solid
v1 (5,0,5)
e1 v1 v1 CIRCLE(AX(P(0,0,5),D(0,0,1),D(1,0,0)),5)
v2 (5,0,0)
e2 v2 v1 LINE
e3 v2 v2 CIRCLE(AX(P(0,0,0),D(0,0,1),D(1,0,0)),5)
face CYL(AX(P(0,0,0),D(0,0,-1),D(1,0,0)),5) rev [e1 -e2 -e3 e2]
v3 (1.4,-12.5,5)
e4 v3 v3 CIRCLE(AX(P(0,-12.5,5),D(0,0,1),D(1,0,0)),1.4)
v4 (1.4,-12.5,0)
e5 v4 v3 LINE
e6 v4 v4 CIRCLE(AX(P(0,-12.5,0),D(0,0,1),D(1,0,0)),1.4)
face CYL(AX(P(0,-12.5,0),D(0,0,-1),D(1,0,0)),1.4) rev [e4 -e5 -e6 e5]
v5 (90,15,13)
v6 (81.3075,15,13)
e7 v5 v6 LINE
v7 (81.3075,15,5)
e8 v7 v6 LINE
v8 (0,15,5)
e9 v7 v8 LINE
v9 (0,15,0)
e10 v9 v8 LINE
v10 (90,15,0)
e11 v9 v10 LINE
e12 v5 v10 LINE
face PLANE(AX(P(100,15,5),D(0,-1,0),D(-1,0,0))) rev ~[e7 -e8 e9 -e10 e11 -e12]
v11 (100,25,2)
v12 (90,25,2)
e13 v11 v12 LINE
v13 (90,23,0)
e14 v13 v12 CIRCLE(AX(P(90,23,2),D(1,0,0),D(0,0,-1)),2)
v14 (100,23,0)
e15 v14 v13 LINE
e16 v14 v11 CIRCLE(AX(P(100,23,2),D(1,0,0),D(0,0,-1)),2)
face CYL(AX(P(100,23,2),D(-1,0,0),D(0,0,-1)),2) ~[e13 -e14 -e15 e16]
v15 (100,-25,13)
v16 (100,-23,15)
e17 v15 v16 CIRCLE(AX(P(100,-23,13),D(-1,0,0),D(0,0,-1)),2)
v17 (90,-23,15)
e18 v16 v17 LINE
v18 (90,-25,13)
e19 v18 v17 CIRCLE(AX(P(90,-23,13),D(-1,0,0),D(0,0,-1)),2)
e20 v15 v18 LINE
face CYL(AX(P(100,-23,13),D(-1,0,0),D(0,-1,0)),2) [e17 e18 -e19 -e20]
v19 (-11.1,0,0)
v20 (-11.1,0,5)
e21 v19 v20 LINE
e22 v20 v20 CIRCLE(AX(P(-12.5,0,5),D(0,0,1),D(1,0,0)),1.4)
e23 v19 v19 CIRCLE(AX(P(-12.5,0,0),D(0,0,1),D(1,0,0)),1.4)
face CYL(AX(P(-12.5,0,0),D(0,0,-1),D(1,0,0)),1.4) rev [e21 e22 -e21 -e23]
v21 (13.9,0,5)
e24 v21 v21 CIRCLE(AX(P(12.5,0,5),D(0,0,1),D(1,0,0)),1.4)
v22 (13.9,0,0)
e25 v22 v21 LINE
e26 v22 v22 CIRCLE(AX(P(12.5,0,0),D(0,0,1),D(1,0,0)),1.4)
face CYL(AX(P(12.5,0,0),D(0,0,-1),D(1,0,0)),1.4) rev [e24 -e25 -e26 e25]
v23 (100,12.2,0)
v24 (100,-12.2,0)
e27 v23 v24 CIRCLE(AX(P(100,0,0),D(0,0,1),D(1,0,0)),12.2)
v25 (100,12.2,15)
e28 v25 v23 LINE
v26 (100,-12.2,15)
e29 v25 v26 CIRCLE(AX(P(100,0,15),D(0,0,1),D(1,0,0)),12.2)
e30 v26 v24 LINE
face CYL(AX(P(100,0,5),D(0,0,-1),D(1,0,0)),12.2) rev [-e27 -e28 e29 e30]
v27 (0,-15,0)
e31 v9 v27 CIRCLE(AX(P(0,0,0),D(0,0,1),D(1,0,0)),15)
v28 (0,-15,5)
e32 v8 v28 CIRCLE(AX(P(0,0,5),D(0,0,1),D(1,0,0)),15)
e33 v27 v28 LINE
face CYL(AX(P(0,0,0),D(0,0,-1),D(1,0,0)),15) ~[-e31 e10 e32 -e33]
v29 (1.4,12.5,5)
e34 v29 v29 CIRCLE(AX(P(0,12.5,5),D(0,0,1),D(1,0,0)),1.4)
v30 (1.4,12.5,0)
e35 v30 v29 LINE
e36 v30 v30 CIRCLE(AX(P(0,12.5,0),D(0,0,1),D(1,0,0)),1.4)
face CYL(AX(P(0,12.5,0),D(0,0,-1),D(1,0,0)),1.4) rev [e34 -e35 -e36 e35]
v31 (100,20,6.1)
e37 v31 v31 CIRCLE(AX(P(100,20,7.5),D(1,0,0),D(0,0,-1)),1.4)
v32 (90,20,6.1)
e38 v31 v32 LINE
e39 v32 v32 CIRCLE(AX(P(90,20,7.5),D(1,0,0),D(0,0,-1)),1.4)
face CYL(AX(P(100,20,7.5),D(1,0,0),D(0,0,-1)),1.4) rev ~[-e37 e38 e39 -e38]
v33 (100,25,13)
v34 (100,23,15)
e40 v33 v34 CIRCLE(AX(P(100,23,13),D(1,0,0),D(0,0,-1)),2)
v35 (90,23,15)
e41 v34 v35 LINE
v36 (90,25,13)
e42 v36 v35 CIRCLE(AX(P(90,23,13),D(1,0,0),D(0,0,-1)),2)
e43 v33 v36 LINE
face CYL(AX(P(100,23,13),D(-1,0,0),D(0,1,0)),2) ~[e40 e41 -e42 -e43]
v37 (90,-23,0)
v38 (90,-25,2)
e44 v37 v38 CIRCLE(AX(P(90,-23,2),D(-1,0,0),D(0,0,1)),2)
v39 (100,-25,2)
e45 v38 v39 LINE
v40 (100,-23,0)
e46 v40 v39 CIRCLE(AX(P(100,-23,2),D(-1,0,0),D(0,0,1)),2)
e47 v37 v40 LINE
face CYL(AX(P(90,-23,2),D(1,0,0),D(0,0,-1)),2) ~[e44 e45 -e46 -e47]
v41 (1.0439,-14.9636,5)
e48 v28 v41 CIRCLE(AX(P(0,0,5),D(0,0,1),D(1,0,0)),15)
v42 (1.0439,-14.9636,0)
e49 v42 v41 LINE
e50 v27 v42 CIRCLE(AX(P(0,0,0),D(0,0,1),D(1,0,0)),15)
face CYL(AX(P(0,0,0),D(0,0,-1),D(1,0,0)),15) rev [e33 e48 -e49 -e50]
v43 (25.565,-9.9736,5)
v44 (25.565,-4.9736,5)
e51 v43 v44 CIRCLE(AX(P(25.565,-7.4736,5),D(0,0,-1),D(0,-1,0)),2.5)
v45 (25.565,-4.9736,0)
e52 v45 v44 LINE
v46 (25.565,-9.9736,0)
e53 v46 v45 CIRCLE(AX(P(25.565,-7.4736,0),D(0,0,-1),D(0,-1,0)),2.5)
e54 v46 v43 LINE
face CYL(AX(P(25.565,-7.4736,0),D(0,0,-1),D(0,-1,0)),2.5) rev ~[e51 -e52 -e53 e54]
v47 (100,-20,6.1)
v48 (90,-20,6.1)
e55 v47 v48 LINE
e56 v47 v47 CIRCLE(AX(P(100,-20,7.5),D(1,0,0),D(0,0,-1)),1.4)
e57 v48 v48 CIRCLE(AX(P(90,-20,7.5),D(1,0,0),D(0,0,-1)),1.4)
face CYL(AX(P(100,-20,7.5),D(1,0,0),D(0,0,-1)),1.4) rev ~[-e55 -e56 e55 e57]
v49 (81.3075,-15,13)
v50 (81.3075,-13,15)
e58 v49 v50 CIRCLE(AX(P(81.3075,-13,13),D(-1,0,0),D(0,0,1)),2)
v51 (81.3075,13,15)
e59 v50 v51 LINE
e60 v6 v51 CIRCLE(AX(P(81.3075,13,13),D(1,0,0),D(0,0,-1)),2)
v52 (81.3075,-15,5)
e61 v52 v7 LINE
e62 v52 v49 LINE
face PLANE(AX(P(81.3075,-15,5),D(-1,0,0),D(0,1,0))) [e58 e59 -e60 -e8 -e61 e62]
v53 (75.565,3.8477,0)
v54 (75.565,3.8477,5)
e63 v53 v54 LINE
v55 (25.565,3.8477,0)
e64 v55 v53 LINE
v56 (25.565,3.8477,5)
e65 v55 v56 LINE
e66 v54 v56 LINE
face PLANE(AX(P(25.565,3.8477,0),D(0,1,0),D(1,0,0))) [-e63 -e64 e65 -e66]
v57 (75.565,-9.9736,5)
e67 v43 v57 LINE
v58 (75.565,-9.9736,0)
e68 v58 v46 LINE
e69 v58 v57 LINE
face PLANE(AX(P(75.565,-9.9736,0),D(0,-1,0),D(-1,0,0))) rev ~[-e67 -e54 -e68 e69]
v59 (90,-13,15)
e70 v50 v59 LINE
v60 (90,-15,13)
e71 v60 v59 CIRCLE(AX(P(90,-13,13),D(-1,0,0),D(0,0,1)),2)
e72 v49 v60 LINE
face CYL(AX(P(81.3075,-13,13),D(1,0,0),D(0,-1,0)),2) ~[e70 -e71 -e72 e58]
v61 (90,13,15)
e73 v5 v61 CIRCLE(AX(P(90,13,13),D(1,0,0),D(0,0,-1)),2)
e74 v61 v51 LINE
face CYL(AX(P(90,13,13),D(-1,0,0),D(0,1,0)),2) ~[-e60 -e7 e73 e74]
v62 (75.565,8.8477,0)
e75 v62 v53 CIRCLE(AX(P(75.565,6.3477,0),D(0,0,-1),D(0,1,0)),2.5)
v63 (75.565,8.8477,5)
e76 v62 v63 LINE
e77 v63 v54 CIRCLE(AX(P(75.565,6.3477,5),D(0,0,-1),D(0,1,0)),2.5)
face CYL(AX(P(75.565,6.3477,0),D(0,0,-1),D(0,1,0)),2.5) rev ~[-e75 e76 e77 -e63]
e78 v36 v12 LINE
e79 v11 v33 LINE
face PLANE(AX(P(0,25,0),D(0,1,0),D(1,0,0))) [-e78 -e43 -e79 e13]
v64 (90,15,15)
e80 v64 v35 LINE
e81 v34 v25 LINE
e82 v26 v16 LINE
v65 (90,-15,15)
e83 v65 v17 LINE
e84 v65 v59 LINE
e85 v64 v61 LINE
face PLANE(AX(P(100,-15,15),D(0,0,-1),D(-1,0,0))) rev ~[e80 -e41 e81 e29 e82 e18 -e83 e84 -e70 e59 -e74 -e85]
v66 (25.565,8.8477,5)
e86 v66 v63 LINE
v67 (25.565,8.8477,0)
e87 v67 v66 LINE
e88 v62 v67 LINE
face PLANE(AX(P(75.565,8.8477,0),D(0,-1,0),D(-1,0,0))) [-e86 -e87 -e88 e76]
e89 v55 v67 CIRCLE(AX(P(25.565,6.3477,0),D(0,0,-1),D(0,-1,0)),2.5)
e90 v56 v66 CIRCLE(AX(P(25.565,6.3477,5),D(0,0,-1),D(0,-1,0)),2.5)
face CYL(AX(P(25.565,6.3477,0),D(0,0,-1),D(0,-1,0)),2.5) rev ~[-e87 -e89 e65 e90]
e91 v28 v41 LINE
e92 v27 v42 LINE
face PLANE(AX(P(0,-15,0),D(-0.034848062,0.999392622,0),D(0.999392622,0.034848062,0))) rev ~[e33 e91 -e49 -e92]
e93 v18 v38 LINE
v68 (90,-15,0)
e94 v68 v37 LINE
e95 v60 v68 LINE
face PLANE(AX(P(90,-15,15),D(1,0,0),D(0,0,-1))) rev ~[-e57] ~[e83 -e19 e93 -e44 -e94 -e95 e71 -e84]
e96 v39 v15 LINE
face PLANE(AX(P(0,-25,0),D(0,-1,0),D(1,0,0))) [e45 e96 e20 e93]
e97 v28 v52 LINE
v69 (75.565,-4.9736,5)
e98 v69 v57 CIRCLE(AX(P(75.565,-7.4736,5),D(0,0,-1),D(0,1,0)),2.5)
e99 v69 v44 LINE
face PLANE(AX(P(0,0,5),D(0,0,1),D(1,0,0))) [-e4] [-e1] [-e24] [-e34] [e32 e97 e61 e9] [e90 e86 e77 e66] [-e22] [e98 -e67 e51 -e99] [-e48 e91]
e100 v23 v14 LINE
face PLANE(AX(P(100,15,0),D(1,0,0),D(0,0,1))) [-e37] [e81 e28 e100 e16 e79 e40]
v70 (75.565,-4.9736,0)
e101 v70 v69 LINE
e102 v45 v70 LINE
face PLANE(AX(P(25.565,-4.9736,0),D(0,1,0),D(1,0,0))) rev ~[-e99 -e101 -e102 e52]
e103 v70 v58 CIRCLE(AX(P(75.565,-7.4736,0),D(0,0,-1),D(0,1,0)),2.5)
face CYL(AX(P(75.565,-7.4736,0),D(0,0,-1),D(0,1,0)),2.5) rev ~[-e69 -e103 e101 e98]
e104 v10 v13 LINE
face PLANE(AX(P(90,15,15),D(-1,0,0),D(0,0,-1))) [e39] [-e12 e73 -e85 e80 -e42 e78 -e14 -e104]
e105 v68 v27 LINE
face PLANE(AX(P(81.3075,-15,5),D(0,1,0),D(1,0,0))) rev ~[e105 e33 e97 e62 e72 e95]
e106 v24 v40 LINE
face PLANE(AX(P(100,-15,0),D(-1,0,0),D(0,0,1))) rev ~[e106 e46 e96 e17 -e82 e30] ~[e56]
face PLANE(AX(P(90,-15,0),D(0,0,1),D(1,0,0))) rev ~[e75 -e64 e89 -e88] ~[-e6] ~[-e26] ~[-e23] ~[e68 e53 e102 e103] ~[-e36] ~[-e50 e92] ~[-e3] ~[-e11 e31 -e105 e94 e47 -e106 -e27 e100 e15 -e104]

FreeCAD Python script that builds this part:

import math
import FreeCAD as App
import Part
import Sketcher
from FreeCAD import Vector
Q = App.Units.Quantity


def edges_at(feature, points):
    """Names of the edges that pass closest to the given points."""
    edges = feature.Shape.Edges
    near = lambda p: min(range(len(edges)), key=lambda i: edges[i].distToShape(Part.Vertex(*p))[0])
    return sorted({f"Edge{near(p) + 1}" for p in points})

doc = App.newDocument("Part")
body = doc.addObject("PartDesign::Body", "Body")

# Sketch on XY plane
sketch1 = body.newObject("Sketcher::SketchObject", "Sketch")
sketch1.AttachmentSupport = (doc.getObject("XY_Plane"), [""])
sketch1.MapMode = "FlatFace"
sketch1.addGeometry([
    Part.LineSegment(Vector(0, -15, 0), Vector(100, -15, 0)),  # 0
    Part.LineSegment(Vector(100, -15, 0), Vector(100, -12.2, 0)),  # 1
    Part.ArcOfCircle(Part.Circle(Vector(100, 0, 0), Vector(0, 0, 1), 12.2), math.radians(90), math.radians(270)),  # 2
    Part.LineSegment(Vector(100, 12.2, 0), Vector(100, 15, 0)),  # 3
    Part.LineSegment(Vector(100, 15, 0), Vector(0, 15, 0)),  # 4
    Part.ArcOfCircle(Part.Circle(Vector(0, 0, 0), Vector(0, 0, 1), 15), math.radians(90), math.radians(270)),  # 5
    Part.LineSegment(Vector(0, -15, 0), Vector(1, -15, 0)),  # 6
    Part.ArcOfCircle(Part.Circle(Vector(0, 0, 0), Vector(0, 0, 1), 15), math.radians(-90), math.radians(-86.01)),  # 7
    Part.Circle(Vector(0, -12.5, 0), Vector(0, 0, 1), 1.4),  # 8
    Part.Circle(Vector(-12.5, 0, 0), Vector(0, 0, 1), 1.4),  # 9
    Part.Circle(Vector(0, 0, 0), Vector(0, 0, 1), 5),  # 10
    Part.Circle(Vector(12.5, 0, 0), Vector(0, 0, 1), 1.4),  # 11
    Part.Circle(Vector(0, 12.5, 0), Vector(0, 0, 1), 1.4),  # 12
], False)
sketch1.addConstraint([
    Sketcher.Constraint("Coincident", 0, 2, 1, 1),
    Sketcher.Constraint("Coincident", 1, 2, 2, 2),
    Sketcher.Constraint("Coincident", 2, 1, 3, 1),
    Sketcher.Constraint("Coincident", 3, 2, 4, 1),
    Sketcher.Constraint("Tangent", 4, 2, 5, 1),
    Sketcher.Constraint("Tangent", 5, 2, 0, 1),
    Sketcher.Constraint("Coincident", 6, 1, 7, 1),
    Sketcher.Constraint("Coincident", 7, 2, 6, 2),
    Sketcher.Constraint("Horizontal", 0),
    Sketcher.Constraint("Vertical", 1),
    Sketcher.Constraint("Vertical", 3),
    Sketcher.Constraint("Horizontal", 4),
    Sketcher.Constraint("Coincident", 5, 3, -1, 1),
    Sketcher.Constraint("Coincident", 7, 3, -1, 1),
    Sketcher.Constraint("Coincident", 10, 3, -1, 1),
    Sketcher.Constraint("Coincident", 6, 1, 5, 2),
    Sketcher.Constraint("Equal", 8, 9),
    Sketcher.Constraint("Equal", 9, 11),
    Sketcher.Constraint("Equal", 11, 12),
    Sketcher.Constraint("Symmetric", 9, 3, 11, 3, -1, 1),
    Sketcher.Constraint("Symmetric", 8, 3, 12, 3, -1, 1),
    Sketcher.Constraint("Symmetric", 1, 2, 2, 1, -1),
    Sketcher.Constraint("PointOnObject", 8, 3, -2),
    Sketcher.Constraint("PointOnObject", 9, 3, -1),
    Sketcher.Constraint("Vertical", 2, 3, 0, 2),
    Sketcher.Constraint("Diameter", 10, Q("10 mm")),
    Sketcher.Constraint("Radius", 5, Q("15 mm")),
    Sketcher.Constraint("Diameter", 8, Q("2.8 mm")),
    Sketcher.Constraint("Radius", 2, Q("12.2 mm")),
    Sketcher.Constraint("DistanceX", 0, 1, 0, 2, Q("100 mm")),
    Sketcher.Constraint("DistanceY", 8, 3, -1, 1, Q("12.5 mm")),
    Sketcher.Constraint("DistanceX", 9, 3, -1, 1, Q("12.5 mm")),
    Sketcher.Constraint("DistanceX", -1, 1, 7, 2, Q("1.044 mm")),
])
pad1 = body.newObject("PartDesign::Pad", "Pad")
pad1.Profile = sketch1
pad1.Length = 5

# Sketch on XY plane
sketch2 = body.newObject("Sketcher::SketchObject", "Sketch001")
sketch2.AttachmentSupport = (doc.getObject("XY_Plane"), [""])
sketch2.MapMode = "FlatFace"
sketch2.AttachmentOffset = App.Placement(Vector(0, 0, 5), App.Rotation())
sketch2.addGeometry([
    Part.LineSegment(Vector(100, 12.2, 0), Vector(100, 15, 0)),  # 0
    Part.LineSegment(Vector(100, 15, 0), Vector(81.3, 15, 0)),  # 1
    Part.LineSegment(Vector(81.3, 15, 0), Vector(81.3, -15, 0)),  # 2
    Part.LineSegment(Vector(81.3, -15, 0), Vector(100, -15, 0)),  # 3
    Part.LineSegment(Vector(100, -15, 0), Vector(100, -12.2, 0)),  # 4
    Part.ArcOfCircle(Part.Circle(Vector(100, 0, 0), Vector(0, 0, 1), 12.2), math.radians(90), math.radians(270)),  # 5
], False)
sketch2.addConstraint([
    Sketcher.Constraint("Coincident", 0, 2, 1, 1),
    Sketcher.Constraint("Coincident", 1, 2, 2, 1),
    Sketcher.Constraint("Coincident", 2, 2, 3, 1),
    Sketcher.Constraint("Coincident", 3, 2, 4, 1),
    Sketcher.Constraint("Coincident", 4, 2, 5, 2),
    Sketcher.Constraint("Coincident", 5, 1, 0, 1),
    Sketcher.Constraint("Vertical", 0),
    Sketcher.Constraint("Horizontal", 1),
    Sketcher.Constraint("Vertical", 2),
    Sketcher.Constraint("Horizontal", 3),
    Sketcher.Constraint("Vertical", 4),
    Sketcher.Constraint("Symmetric", 0, 2, 3, 2, -1),
    Sketcher.Constraint("PointOnObject", 5, 3, -1),
    Sketcher.Constraint("Vertical", 5, 3, 0, 2),
    Sketcher.Constraint("Radius", 5, Q("12.2 mm")),
    Sketcher.Constraint("DistanceY", 2, 2, 2, 1, Q("30 mm")),
    Sketcher.Constraint("DistanceX", -1, 1, 5, 3, Q("100 mm")),
    Sketcher.Constraint("DistanceX", 1, 2, 1, 1, Q("18.6925 mm")),
])
pad2 = body.newObject("PartDesign::Pad", "Pad001")
pad2.Profile = sketch2
pad2.Length = 10

# Sketch on XZ plane
sketch3 = body.newObject("Sketcher::SketchObject", "Sketch002")
sketch3.AttachmentSupport = (doc.getObject("XZ_Plane"), [""])
sketch3.MapMode = "FlatFace"
sketch3.AttachmentOffset = App.Placement(Vector(0, 0, -15), App.Rotation())
sketch3.addGeometry([
    Part.LineSegment(Vector(100, 15, 0), Vector(100, 0, 0)),
    Part.LineSegment(Vector(100, 0, 0), Vector(90, 0, 0)),
    Part.LineSegment(Vector(90, 0, 0), Vector(90, 15, 0)),
    Part.LineSegment(Vector(90, 15, 0), Vector(100, 15, 0)),
], False)
sketch3.addConstraint([
    Sketcher.Constraint("Coincident", 0, 2, 1, 1),
    Sketcher.Constraint("Coincident", 1, 2, 2, 1),
    Sketcher.Constraint("Coincident", 2, 2, 3, 1),
    Sketcher.Constraint("Coincident", 3, 2, 0, 1),
    Sketcher.Constraint("Vertical", 0),
    Sketcher.Constraint("Horizontal", 1),
    Sketcher.Constraint("Vertical", 2),
    Sketcher.Constraint("Horizontal", 3),
    Sketcher.Constraint("PointOnObject", 0, 2, -1),
    Sketcher.Constraint("DistanceX", 1, 2, 1, 1, Q("10 mm")),
    Sketcher.Constraint("DistanceY", 0, 2, 0, 1, Q("15 mm")),
    Sketcher.Constraint("DistanceX", -1, 1, 0, 2, Q("100 mm")),
])
pad3 = body.newObject("PartDesign::Pad", "Pad002")
pad3.Profile = sketch3
pad3.Length = 10
pad3.Reversed = True

# Sketch on XZ plane
sketch4 = body.newObject("Sketcher::SketchObject", "Sketch003")
sketch4.AttachmentSupport = (doc.getObject("XZ_Plane"), [""])
sketch4.MapMode = "FlatFace"
sketch4.AttachmentOffset = App.Placement(Vector(0, 0, 15), App.Rotation())
sketch4.addGeometry([
    Part.LineSegment(Vector(90, 0, 0), Vector(100, 0, 0)),
    Part.LineSegment(Vector(100, 0, 0), Vector(100, 15, 0)),
    Part.LineSegment(Vector(100, 15, 0), Vector(90, 15, 0)),
    Part.LineSegment(Vector(90, 15, 0), Vector(90, 0, 0)),
], False)
sketch4.addConstraint([
    Sketcher.Constraint("Coincident", 0, 2, 1, 1),
    Sketcher.Constraint("Coincident", 1, 2, 2, 1),
    Sketcher.Constraint("Coincident", 2, 2, 3, 1),
    Sketcher.Constraint("Coincident", 3, 2, 0, 1),
    Sketcher.Constraint("Horizontal", 0),
    Sketcher.Constraint("Vertical", 1),
    Sketcher.Constraint("Horizontal", 2),
    Sketcher.Constraint("Vertical", 3),
    Sketcher.Constraint("PointOnObject", 0, 2, -1),
    Sketcher.Constraint("DistanceX", 0, 1, 0, 2, Q("10 mm")),
    Sketcher.Constraint("DistanceY", 1, 1, 1, 2, Q("15 mm")),
    Sketcher.Constraint("DistanceX", -1, 1, 0, 2, Q("100 mm")),
])
pad4 = body.newObject("PartDesign::Pad", "Pad003")
pad4.Profile = sketch4
pad4.Length = 10

# Sketch on YZ plane
sketch5 = body.newObject("Sketcher::SketchObject", "Sketch004")
sketch5.AttachmentSupport = (doc.getObject("YZ_Plane"), [""])
sketch5.MapMode = "FlatFace"
sketch5.AttachmentOffset = App.Placement(Vector(0, 0, 100), App.Rotation())
sketch5.addGeometry([
    Part.Circle(Vector(-20, 7.5, 0), Vector(0, 0, 1), 1.4),
    Part.Circle(Vector(20, 7.5, 0), Vector(0, 0, 1), 1.4),
], False)
sketch5.addConstraint([
    Sketcher.Constraint("Equal", 0, 1),
    Sketcher.Constraint("Symmetric", 0, 3, 1, 3, -2),
    Sketcher.Constraint("Diameter", 0, Q("2.8 mm")),
    Sketcher.Constraint("DistanceY", -1, 1, 0, 3, Q("7.5 mm")),
    Sketcher.Constraint("DistanceX", 0, 3, -1, 1, Q("20 mm")),
])
pocket1 = body.newObject("PartDesign::Pocket", "Pocket")
pocket1.Profile = sketch5
pocket1.Type = "ThroughAll"
doc.recompute()

fillet = body.newObject("PartDesign::Fillet", "Fillet")
fillet.Base = (pocket1, edges_at(pocket1, [(95, -25, 0), (95, -25, 15)]))
fillet.Radius = 2
doc.recompute()

fillet2 = body.newObject("PartDesign::Fillet", "Fillet001")
fillet2.Base = (fillet, edges_at(fillet, [(95, 25, 0), (95, 25, 15)]))
fillet2.Radius = 2

# Sketch on XY plane
sketch6 = body.newObject("Sketcher::SketchObject", "Sketch005")
sketch6.AttachmentSupport = (doc.getObject("XY_Plane"), [""])
sketch6.MapMode = "FlatFace"
sketch6.addGeometry([
    Part.ArcOfCircle(Part.Circle(Vector(25.6, -7.5, 0), Vector(0, 0, 1), 2.5), math.radians(90), math.radians(270)),  # 0
    Part.LineSegment(Vector(25.6, -5, 0), Vector(75.6, -5, 0)),  # 1
    Part.ArcOfCircle(Part.Circle(Vector(75.6, -7.5, 0), Vector(0, 0, 1), 2.5), math.radians(-90), math.radians(90)),  # 2
    Part.LineSegment(Vector(75.6, -10, 0), Vector(25.6, -10, 0)),  # 3
    Part.LineSegment(Vector(75.6, 3.8, 0), Vector(25.6, 3.8, 0)),  # 4
    Part.ArcOfCircle(Part.Circle(Vector(25.6, 6.3, 0), Vector(0, 0, 1), 2.5), math.radians(90), math.radians(270)),  # 5
    Part.LineSegment(Vector(25.6, 8.8, 0), Vector(75.6, 8.8, 0)),  # 6
    Part.ArcOfCircle(Part.Circle(Vector(75.6, 6.3, 0), Vector(0, 0, 1), 2.5), math.radians(-90), math.radians(90)),  # 7
], False)
sketch6.addConstraint([
    Sketcher.Constraint("Tangent", 0, 1, 1, 1),
    Sketcher.Constraint("Tangent", 1, 2, 2, 2),
    Sketcher.Constraint("Tangent", 2, 1, 3, 1),
    Sketcher.Constraint("Tangent", 3, 2, 0, 2),
    Sketcher.Constraint("Tangent", 4, 2, 5, 2),
    Sketcher.Constraint("Tangent", 5, 1, 6, 1),
    Sketcher.Constraint("Tangent", 6, 2, 7, 2),
    Sketcher.Constraint("Tangent", 7, 1, 4, 1),
    Sketcher.Constraint("Horizontal", 1),
    Sketcher.Constraint("Horizontal", 3),
    Sketcher.Constraint("Horizontal", 4),
    Sketcher.Constraint("Horizontal", 6),
    Sketcher.Constraint("Equal", 2, 5),
    Sketcher.Constraint("Vertical", 0, 3, 5, 3),
    Sketcher.Constraint("Vertical", 2, 3, 7, 3),
    Sketcher.Constraint("Radius", 0, Q("2.5 mm")),
    Sketcher.Constraint("DistanceX", 1, 1, 1, 2, Q("50 mm")),
    Sketcher.Constraint("DistanceX", -1, 1, 0, 3, Q("25.565 mm")),
    Sketcher.Constraint("DistanceY", 0, 3, -1, 1, Q("7.4736 mm")),
    Sketcher.Constraint("DistanceY", -1, 1, 5, 3, Q("6.3477 mm")),
])
pocket2 = body.newObject("PartDesign::Pocket", "Pocket001")
pocket2.Profile = sketch6
pocket2.Type = "ThroughAll"
pocket2.Reversed = True
doc.recompute()

fillet3 = body.newObject("PartDesign::Fillet", "Fillet002")
fillet3.Base = (pocket2, edges_at(pocket2, [(85.654, 15, 15), (85.654, -15, 15)]))
fillet3.Radius = 2

doc.recompute()
